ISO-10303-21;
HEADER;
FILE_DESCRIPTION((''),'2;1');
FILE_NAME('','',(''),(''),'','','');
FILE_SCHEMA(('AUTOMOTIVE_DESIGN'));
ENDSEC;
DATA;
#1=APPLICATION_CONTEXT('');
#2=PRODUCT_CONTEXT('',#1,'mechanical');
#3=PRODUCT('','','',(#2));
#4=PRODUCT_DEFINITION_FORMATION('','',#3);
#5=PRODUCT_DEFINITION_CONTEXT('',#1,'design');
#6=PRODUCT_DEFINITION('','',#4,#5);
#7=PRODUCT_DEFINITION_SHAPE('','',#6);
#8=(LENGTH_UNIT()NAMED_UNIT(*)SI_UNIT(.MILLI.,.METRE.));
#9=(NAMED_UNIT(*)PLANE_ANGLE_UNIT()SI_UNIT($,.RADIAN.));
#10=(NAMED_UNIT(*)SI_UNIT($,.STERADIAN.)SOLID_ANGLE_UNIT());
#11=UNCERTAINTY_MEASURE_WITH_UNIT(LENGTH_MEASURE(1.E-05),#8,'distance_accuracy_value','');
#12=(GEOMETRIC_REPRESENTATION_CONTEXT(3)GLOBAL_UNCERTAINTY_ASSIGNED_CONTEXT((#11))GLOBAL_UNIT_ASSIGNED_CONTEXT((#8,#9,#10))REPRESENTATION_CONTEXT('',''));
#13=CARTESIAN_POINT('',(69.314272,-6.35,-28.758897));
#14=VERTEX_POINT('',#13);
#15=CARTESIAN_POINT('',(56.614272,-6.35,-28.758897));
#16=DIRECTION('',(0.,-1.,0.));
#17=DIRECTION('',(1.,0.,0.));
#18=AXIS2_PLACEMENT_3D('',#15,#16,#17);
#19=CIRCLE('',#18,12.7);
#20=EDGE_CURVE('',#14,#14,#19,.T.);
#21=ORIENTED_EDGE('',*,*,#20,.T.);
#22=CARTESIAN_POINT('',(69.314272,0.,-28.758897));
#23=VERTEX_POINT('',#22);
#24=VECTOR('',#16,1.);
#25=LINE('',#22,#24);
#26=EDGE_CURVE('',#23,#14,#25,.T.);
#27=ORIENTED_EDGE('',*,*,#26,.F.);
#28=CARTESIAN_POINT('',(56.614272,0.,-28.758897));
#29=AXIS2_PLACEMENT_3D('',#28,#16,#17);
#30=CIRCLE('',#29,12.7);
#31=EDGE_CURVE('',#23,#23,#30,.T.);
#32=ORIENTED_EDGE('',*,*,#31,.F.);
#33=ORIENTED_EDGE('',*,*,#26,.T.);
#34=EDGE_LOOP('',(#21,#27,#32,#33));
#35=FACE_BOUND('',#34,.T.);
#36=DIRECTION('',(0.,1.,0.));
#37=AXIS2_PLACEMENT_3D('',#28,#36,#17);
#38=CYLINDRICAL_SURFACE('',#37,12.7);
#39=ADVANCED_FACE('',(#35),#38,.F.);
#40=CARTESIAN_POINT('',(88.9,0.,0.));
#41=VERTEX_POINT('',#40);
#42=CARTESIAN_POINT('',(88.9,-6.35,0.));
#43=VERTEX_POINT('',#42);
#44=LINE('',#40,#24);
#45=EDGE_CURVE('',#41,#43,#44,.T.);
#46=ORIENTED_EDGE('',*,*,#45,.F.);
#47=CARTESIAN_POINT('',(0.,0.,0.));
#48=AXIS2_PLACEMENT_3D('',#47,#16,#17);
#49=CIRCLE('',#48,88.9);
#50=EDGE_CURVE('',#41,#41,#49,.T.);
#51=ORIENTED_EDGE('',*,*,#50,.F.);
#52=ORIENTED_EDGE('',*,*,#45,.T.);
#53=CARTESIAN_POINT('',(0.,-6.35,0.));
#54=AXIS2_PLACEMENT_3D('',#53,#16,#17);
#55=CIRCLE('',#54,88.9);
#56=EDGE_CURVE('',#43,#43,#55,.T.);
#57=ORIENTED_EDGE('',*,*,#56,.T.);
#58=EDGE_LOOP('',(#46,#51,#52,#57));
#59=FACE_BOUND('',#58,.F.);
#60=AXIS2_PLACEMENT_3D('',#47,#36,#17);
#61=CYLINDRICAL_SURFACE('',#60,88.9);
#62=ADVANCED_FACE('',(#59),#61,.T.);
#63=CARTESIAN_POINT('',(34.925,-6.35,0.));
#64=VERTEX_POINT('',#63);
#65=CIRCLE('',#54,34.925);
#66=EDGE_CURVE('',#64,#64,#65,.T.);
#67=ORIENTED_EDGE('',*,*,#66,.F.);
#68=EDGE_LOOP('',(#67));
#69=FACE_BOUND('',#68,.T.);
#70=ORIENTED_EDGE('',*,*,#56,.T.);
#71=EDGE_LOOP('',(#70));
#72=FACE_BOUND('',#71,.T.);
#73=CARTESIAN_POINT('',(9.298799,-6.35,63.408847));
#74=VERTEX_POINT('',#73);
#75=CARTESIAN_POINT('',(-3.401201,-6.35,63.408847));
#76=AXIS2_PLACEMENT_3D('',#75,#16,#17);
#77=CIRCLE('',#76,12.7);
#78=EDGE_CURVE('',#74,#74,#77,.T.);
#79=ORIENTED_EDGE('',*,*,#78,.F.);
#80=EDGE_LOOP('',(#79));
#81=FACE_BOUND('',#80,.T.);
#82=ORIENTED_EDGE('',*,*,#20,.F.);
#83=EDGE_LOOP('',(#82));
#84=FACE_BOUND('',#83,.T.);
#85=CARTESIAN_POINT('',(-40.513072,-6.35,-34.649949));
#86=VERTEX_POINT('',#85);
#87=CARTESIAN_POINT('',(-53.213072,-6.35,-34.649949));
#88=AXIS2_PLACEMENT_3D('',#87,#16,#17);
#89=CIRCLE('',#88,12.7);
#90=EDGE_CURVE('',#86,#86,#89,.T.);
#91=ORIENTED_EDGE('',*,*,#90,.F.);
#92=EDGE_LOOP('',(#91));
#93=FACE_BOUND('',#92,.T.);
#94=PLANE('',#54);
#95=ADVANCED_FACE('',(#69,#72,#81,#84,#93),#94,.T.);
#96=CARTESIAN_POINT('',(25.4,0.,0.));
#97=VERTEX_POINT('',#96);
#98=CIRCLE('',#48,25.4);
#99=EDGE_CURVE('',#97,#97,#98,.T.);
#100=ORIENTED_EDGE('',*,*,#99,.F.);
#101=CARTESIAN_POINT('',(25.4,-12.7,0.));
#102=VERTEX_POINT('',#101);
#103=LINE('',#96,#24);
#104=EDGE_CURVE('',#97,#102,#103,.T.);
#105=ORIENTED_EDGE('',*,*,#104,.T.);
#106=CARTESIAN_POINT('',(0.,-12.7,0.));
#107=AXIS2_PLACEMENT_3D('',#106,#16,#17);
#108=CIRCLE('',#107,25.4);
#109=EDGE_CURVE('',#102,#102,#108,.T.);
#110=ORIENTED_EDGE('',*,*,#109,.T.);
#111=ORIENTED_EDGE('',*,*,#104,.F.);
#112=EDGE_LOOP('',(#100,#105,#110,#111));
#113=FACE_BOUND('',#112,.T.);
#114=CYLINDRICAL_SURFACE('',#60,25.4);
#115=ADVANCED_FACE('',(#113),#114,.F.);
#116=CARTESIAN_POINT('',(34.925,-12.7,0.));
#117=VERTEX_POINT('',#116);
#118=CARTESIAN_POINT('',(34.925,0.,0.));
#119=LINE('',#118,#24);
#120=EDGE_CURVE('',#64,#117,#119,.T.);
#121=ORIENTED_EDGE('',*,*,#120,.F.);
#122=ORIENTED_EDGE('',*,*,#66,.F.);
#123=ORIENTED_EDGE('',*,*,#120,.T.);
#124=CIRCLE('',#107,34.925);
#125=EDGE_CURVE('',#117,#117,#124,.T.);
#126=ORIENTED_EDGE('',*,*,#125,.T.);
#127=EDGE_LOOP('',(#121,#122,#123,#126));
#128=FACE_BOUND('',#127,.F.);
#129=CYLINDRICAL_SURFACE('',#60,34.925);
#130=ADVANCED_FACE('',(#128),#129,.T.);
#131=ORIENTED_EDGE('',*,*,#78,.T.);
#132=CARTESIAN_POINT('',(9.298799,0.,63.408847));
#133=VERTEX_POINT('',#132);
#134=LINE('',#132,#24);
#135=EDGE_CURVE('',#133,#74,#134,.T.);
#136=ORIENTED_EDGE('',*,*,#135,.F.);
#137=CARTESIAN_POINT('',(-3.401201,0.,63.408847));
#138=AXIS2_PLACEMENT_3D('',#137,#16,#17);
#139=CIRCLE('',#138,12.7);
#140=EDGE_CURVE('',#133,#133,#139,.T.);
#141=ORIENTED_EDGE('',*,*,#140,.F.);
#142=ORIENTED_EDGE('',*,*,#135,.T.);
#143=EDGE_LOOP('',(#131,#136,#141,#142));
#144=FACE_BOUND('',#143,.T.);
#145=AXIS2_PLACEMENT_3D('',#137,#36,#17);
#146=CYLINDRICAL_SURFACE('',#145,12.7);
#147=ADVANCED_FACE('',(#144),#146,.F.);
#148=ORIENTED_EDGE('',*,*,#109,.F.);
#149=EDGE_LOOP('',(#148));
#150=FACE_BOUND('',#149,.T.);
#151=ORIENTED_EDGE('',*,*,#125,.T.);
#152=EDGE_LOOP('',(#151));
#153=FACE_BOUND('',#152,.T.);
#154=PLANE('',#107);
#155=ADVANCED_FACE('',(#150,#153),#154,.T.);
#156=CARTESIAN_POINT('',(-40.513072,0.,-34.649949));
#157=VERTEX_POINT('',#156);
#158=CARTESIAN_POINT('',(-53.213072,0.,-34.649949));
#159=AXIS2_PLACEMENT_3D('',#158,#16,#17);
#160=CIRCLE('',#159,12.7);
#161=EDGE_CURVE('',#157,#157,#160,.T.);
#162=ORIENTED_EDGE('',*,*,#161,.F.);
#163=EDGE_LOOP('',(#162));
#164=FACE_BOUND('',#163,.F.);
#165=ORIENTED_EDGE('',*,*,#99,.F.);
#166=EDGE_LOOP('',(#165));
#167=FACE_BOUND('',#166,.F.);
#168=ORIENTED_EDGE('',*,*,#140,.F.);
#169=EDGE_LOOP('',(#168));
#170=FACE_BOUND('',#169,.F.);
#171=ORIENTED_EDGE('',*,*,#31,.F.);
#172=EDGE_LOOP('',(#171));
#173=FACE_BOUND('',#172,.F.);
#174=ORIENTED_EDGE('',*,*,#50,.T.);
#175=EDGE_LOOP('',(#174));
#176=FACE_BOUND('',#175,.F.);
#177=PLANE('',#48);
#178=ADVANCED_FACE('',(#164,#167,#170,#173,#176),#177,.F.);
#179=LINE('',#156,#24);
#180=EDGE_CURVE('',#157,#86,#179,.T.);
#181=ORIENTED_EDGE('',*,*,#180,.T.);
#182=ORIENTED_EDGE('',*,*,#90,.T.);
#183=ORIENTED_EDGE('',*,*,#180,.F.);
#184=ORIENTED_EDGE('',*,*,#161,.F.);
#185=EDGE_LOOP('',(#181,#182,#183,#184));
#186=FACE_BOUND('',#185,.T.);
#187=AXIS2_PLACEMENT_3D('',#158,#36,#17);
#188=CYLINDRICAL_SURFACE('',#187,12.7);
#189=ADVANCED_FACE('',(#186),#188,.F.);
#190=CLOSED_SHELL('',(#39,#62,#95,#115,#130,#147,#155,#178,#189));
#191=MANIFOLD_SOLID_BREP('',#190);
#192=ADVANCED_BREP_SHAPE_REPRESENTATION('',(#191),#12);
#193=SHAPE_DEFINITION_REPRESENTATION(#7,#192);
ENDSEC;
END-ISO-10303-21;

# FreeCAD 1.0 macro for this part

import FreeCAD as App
import Part
import Sketcher

V = App.Vector
Q = App.Units.Quantity

doc = App.newDocument("Part")
body = doc.addObject("PartDesign::Body", "Body")

sketch1 = body.newObject("Sketcher::SketchObject", "Sketch")
sketch1.AttachmentSupport = (doc.getObject("XZ_Plane"), [""])
sketch1.MapMode = "FlatFace"
sketch1.addGeometry(Part.Circle(V(0, 0, 0), V(0, 0, 1), 89), False)
sketch1.addGeometry(Part.Circle(V(-53, -35, 0), V(0, 0, 1), 13), False)
sketch1.addGeometry(Part.Circle(V(0, 0, 0), V(0, 0, 1), 35), False)
sketch1.addGeometry(Part.Circle(V(57, -29, 0), V(0, 0, 1), 13), False)
sketch1.addGeometry(Part.Circle(V(-3, 63, 0), V(0, 0, 1), 13), False)
sketch1.addConstraint(Sketcher.Constraint("Coincident", 0, 3, -1, 1))
sketch1.addConstraint(Sketcher.Constraint("Coincident", 2, 3, -1, 1))
sketch1.addConstraint(Sketcher.Constraint("Equal", 1, 3))
sketch1.addConstraint(Sketcher.Constraint("Equal", 3, 4))
sketch1.addConstraint(Sketcher.Constraint("Diameter", 0, Q("7 in")))
sketch1.addConstraint(Sketcher.Constraint("Diameter", 1, Q("1 in")))
sketch1.addConstraint(Sketcher.Constraint("Diameter", 2, Q("2.75 in")))
sketch1.addConstraint(Sketcher.Constraint("DistanceX", 4, 3, -1, 1, 3.401201))
sketch1.addConstraint(Sketcher.Constraint("DistanceX", 1, 3, -1, 1, 53.213072))
sketch1.addConstraint(Sketcher.Constraint("DistanceY", 1, 3, -1, 1, 34.649949))
sketch1.addConstraint(Sketcher.Constraint("DistanceY", 1, 3, 3, 3, 5.891052))
sketch1.addConstraint(Sketcher.Constraint("DistanceX", -1, 1, 3, 3, 56.614272))
sketch1.addConstraint(Sketcher.Constraint("DistanceY", -1, 1, 4, 3, 63.408847))
pad1 = body.newObject("PartDesign::Pad", "Pad")
pad1.Profile = sketch1
pad1.Length = Q("0.25 in")

sketch2 = body.newObject("Sketcher::SketchObject", "Sketch001")
sketch2.AttachmentSupport = (doc.getObject("XZ_Plane"), [""])
sketch2.MapMode = "FlatFace"
sketch2.addGeometry(Part.Circle(V(0, 0, 0), V(0, 0, 1), 35), False)
sketch2.addGeometry(Part.Circle(V(0, 0, 0), V(0, 0, 1), 25), False)
sketch2.addConstraint(Sketcher.Constraint("Coincident", 0, 3, -1, 1))
sketch2.addConstraint(Sketcher.Constraint("Coincident", 1, 3, -1, 1))
sketch2.addConstraint(Sketcher.Constraint("Diameter", 1, Q("2 in")))
sketch2.addConstraint(Sketcher.Constraint("Diameter", 0, Q("2.75 in")))
pad2 = body.newObject("PartDesign::Pad", "Pad001")
pad2.Profile = sketch2
pad2.Length = Q("0.5 in")

doc.recompute()
